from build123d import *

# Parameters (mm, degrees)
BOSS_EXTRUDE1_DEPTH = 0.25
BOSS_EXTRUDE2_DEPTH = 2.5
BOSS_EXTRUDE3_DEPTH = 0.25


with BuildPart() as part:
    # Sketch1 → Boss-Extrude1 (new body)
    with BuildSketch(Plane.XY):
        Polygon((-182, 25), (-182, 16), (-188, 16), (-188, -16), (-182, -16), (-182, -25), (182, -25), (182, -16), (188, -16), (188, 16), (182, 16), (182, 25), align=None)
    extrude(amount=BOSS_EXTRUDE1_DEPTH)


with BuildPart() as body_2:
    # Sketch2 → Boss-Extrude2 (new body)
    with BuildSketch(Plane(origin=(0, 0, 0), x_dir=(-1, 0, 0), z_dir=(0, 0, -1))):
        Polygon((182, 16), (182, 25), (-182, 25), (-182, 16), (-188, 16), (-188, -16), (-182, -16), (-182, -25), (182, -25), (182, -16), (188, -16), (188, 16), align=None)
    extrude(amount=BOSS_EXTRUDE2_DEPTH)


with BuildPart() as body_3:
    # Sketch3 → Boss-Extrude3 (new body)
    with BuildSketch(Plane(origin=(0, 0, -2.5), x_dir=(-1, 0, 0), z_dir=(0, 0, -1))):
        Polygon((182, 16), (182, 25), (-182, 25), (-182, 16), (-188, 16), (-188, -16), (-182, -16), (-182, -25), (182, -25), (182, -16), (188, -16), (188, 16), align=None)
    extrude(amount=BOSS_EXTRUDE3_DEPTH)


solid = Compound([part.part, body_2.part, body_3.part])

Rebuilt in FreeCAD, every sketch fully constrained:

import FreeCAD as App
import Part
import Sketcher
Q = App.Units.Quantity


def add_polygon(sketch, points):
    """Adds a closed chain of lines whose ends are joined by coincident constraints."""
    first, n = sketch.GeometryCount, len(points)
    for a, b in zip(points, points[1:] + points[:1]):
        sketch.addGeometry(Part.LineSegment(App.Vector(*a, 0), App.Vector(*b, 0)), False)
    for i in range(n):
        sketch.addConstraint(Sketcher.Constraint("Coincident", first + i, 2, first + (i + 1) % n, 1))

doc = App.newDocument("Part")
body = doc.addObject("PartDesign::Body", "Body")

# Sketch on XY plane
sketch1 = doc.addObject("Sketcher::SketchObject", "Sketch")
body.addObject(sketch1)
sketch1.AttachmentSupport = (doc.XY_Plane, [""])
sketch1.MapMode = "FlatFace"
add_polygon(sketch1, [(-182, 25), (-182, 16), (-188, 16), (-188, -16), (-182, -16), (-182, -25), (182, -25), (182, -16), (188, -16), (188, 16), (182, 16), (182, 25)])  # lines 0-11
sketch1.addConstraint(Sketcher.Constraint("Vertical", 0))
sketch1.addConstraint(Sketcher.Constraint("Horizontal", 1))
sketch1.addConstraint(Sketcher.Constraint("Vertical", 2))
sketch1.addConstraint(Sketcher.Constraint("Horizontal", 3))
sketch1.addConstraint(Sketcher.Constraint("Vertical", 4))
sketch1.addConstraint(Sketcher.Constraint("Horizontal", 5))
sketch1.addConstraint(Sketcher.Constraint("Vertical", 6))
sketch1.addConstraint(Sketcher.Constraint("Horizontal", 7))
sketch1.addConstraint(Sketcher.Constraint("Vertical", 8))
sketch1.addConstraint(Sketcher.Constraint("Horizontal", 9))
sketch1.addConstraint(Sketcher.Constraint("Vertical", 10))
sketch1.addConstraint(Sketcher.Constraint("Horizontal", 11))
sketch1.addConstraint(Sketcher.Constraint("Symmetric", 0, 2, 6, 2, -1, 1))
sketch1.addConstraint(Sketcher.Constraint("Symmetric", 2, 2, 8, 2, -1, 1))
sketch1.addConstraint(Sketcher.Constraint("Symmetric", 4, 2, 10, 2, -1, 1))
sketch1.addConstraint(Sketcher.Constraint("Symmetric", 3, 2, 6, 2, -2))
sketch1.addConstraint(Sketcher.Constraint("DistanceX", 1, 2, 1, 1, Q("6 mm")))
sketch1.addConstraint(Sketcher.Constraint("DistanceX", 5, 1, 5, 2, Q("364 mm")))
sketch1.addConstraint(Sketcher.Constraint("DistanceY", 0, 2, 0, 1, Q("9 mm")))
sketch1.addConstraint(Sketcher.Constraint("DistanceY", 2, 2, 2, 1, Q("32 mm")))
pad1 = doc.addObject("PartDesign::Pad", "Pad")
body.addObject(pad1)
pad1.Profile = sketch1
pad1.Length = 0.25
body2 = doc.addObject("PartDesign::Body", "Body001")

# Sketch on XY plane
sketch2 = doc.addObject("Sketcher::SketchObject", "Sketch001")
body2.addObject(sketch2)
sketch2.AttachmentSupport = (doc.getObject("XY_Plane001"), [""])
sketch2.MapMode = "FlatFace"
add_polygon(sketch2, [(-182, 16), (-182, 25), (182, 25), (182, 16), (188, 16), (188, -16), (182, -16), (182, -25), (-182, -25), (-182, -16), (-188, -16), (-188, 16)])  # lines 0-11
sketch2.addConstraint(Sketcher.Constraint("Vertical", 0))
sketch2.addConstraint(Sketcher.Constraint("Horizontal", 1))
sketch2.addConstraint(Sketcher.Constraint("Vertical", 2))
sketch2.addConstraint(Sketcher.Constraint("Horizontal", 3))
sketch2.addConstraint(Sketcher.Constraint("Vertical", 4))
sketch2.addConstraint(Sketcher.Constraint("Horizontal", 5))
sketch2.addConstraint(Sketcher.Constraint("Vertical", 6))
sketch2.addConstraint(Sketcher.Constraint("Horizontal", 7))
sketch2.addConstraint(Sketcher.Constraint("Vertical", 8))
sketch2.addConstraint(Sketcher.Constraint("Horizontal", 9))
sketch2.addConstraint(Sketcher.Constraint("Vertical", 10))
sketch2.addConstraint(Sketcher.Constraint("Horizontal", 11))
sketch2.addConstraint(Sketcher.Constraint("Symmetric", 0, 2, 6, 2, -1, 1))
sketch2.addConstraint(Sketcher.Constraint("Symmetric", 2, 2, 8, 2, -1, 1))
sketch2.addConstraint(Sketcher.Constraint("Symmetric", 4, 2, 10, 2, -1, 1))
sketch2.addConstraint(Sketcher.Constraint("Symmetric", 5, 2, 8, 2, -2))
sketch2.addConstraint(Sketcher.Constraint("DistanceX", 1, 1, 1, 2, Q("364 mm")))
sketch2.addConstraint(Sketcher.Constraint("DistanceX", 3, 1, 3, 2, Q("6 mm")))
sketch2.addConstraint(Sketcher.Constraint("DistanceY", 0, 1, 0, 2, Q("9 mm")))
sketch2.addConstraint(Sketcher.Constraint("DistanceY", 4, 2, 4, 1, Q("32 mm")))
pad2 = doc.addObject("PartDesign::Pad", "Pad001")
body2.addObject(pad2)
pad2.Profile = sketch2
pad2.Length = 2.5
pad2.Reversed = True
body3 = doc.addObject("PartDesign::Body", "Body002")

# Sketch on XY plane
sketch3 = doc.addObject("Sketcher::SketchObject", "Sketch002")
body3.addObject(sketch3)
sketch3.AttachmentSupport = (doc.getObject("XY_Plane002"), [""])
sketch3.MapMode = "FlatFace"
sketch3.AttachmentOffset = App.Placement(App.Vector(0, 0, -2.5), App.Rotation())
add_polygon(sketch3, [(-182, 16), (-182, 25), (182, 25), (182, 16), (188, 16), (188, -16), (182, -16), (182, -25), (-182, -25), (-182, -16), (-188, -16), (-188, 16)])  # lines 0-11
sketch3.addConstraint(Sketcher.Constraint("Vertical", 0))
sketch3.addConstraint(Sketcher.Constraint("Horizontal", 1))
sketch3.addConstraint(Sketcher.Constraint("Vertical", 2))
sketch3.addConstraint(Sketcher.Constraint("Horizontal", 3))
sketch3.addConstraint(Sketcher.Constraint("Vertical", 4))
sketch3.addConstraint(Sketcher.Constraint("Horizontal", 5))
sketch3.addConstraint(Sketcher.Constraint("Vertical", 6))
sketch3.addConstraint(Sketcher.Constraint("Horizontal", 7))
sketch3.addConstraint(Sketcher.Constraint("Vertical", 8))
sketch3.addConstraint(Sketcher.Constraint("Horizontal", 9))
sketch3.addConstraint(Sketcher.Constraint("Vertical", 10))
sketch3.addConstraint(Sketcher.Constraint("Horizontal", 11))
sketch3.addConstraint(Sketcher.Constraint("Symmetric", 0, 2, 6, 2, -1, 1))
sketch3.addConstraint(Sketcher.Constraint("Symmetric", 2, 2, 8, 2, -1, 1))
sketch3.addConstraint(Sketcher.Constraint("Symmetric", 4, 2, 10, 2, -1, 1))
sketch3.addConstraint(Sketcher.Constraint("Symmetric", 5, 2, 8, 2, -2))
sketch3.addConstraint(Sketcher.Constraint("DistanceX", 1, 1, 1, 2, Q("364 mm")))
sketch3.addConstraint(Sketcher.Constraint("DistanceX", 3, 1, 3, 2, Q("6 mm")))
sketch3.addConstraint(Sketcher.Constraint("DistanceY", 0, 1, 0, 2, Q("9 mm")))
sketch3.addConstraint(Sketcher.Constraint("DistanceY", 4, 2, 4, 1, Q("32 mm")))
pad3 = doc.addObject("PartDesign::Pad", "Pad002")
body3.addObject(pad3)
pad3.Profile = sketch3
pad3.Length = 0.25
pad3.Reversed = True

doc.recompute()
